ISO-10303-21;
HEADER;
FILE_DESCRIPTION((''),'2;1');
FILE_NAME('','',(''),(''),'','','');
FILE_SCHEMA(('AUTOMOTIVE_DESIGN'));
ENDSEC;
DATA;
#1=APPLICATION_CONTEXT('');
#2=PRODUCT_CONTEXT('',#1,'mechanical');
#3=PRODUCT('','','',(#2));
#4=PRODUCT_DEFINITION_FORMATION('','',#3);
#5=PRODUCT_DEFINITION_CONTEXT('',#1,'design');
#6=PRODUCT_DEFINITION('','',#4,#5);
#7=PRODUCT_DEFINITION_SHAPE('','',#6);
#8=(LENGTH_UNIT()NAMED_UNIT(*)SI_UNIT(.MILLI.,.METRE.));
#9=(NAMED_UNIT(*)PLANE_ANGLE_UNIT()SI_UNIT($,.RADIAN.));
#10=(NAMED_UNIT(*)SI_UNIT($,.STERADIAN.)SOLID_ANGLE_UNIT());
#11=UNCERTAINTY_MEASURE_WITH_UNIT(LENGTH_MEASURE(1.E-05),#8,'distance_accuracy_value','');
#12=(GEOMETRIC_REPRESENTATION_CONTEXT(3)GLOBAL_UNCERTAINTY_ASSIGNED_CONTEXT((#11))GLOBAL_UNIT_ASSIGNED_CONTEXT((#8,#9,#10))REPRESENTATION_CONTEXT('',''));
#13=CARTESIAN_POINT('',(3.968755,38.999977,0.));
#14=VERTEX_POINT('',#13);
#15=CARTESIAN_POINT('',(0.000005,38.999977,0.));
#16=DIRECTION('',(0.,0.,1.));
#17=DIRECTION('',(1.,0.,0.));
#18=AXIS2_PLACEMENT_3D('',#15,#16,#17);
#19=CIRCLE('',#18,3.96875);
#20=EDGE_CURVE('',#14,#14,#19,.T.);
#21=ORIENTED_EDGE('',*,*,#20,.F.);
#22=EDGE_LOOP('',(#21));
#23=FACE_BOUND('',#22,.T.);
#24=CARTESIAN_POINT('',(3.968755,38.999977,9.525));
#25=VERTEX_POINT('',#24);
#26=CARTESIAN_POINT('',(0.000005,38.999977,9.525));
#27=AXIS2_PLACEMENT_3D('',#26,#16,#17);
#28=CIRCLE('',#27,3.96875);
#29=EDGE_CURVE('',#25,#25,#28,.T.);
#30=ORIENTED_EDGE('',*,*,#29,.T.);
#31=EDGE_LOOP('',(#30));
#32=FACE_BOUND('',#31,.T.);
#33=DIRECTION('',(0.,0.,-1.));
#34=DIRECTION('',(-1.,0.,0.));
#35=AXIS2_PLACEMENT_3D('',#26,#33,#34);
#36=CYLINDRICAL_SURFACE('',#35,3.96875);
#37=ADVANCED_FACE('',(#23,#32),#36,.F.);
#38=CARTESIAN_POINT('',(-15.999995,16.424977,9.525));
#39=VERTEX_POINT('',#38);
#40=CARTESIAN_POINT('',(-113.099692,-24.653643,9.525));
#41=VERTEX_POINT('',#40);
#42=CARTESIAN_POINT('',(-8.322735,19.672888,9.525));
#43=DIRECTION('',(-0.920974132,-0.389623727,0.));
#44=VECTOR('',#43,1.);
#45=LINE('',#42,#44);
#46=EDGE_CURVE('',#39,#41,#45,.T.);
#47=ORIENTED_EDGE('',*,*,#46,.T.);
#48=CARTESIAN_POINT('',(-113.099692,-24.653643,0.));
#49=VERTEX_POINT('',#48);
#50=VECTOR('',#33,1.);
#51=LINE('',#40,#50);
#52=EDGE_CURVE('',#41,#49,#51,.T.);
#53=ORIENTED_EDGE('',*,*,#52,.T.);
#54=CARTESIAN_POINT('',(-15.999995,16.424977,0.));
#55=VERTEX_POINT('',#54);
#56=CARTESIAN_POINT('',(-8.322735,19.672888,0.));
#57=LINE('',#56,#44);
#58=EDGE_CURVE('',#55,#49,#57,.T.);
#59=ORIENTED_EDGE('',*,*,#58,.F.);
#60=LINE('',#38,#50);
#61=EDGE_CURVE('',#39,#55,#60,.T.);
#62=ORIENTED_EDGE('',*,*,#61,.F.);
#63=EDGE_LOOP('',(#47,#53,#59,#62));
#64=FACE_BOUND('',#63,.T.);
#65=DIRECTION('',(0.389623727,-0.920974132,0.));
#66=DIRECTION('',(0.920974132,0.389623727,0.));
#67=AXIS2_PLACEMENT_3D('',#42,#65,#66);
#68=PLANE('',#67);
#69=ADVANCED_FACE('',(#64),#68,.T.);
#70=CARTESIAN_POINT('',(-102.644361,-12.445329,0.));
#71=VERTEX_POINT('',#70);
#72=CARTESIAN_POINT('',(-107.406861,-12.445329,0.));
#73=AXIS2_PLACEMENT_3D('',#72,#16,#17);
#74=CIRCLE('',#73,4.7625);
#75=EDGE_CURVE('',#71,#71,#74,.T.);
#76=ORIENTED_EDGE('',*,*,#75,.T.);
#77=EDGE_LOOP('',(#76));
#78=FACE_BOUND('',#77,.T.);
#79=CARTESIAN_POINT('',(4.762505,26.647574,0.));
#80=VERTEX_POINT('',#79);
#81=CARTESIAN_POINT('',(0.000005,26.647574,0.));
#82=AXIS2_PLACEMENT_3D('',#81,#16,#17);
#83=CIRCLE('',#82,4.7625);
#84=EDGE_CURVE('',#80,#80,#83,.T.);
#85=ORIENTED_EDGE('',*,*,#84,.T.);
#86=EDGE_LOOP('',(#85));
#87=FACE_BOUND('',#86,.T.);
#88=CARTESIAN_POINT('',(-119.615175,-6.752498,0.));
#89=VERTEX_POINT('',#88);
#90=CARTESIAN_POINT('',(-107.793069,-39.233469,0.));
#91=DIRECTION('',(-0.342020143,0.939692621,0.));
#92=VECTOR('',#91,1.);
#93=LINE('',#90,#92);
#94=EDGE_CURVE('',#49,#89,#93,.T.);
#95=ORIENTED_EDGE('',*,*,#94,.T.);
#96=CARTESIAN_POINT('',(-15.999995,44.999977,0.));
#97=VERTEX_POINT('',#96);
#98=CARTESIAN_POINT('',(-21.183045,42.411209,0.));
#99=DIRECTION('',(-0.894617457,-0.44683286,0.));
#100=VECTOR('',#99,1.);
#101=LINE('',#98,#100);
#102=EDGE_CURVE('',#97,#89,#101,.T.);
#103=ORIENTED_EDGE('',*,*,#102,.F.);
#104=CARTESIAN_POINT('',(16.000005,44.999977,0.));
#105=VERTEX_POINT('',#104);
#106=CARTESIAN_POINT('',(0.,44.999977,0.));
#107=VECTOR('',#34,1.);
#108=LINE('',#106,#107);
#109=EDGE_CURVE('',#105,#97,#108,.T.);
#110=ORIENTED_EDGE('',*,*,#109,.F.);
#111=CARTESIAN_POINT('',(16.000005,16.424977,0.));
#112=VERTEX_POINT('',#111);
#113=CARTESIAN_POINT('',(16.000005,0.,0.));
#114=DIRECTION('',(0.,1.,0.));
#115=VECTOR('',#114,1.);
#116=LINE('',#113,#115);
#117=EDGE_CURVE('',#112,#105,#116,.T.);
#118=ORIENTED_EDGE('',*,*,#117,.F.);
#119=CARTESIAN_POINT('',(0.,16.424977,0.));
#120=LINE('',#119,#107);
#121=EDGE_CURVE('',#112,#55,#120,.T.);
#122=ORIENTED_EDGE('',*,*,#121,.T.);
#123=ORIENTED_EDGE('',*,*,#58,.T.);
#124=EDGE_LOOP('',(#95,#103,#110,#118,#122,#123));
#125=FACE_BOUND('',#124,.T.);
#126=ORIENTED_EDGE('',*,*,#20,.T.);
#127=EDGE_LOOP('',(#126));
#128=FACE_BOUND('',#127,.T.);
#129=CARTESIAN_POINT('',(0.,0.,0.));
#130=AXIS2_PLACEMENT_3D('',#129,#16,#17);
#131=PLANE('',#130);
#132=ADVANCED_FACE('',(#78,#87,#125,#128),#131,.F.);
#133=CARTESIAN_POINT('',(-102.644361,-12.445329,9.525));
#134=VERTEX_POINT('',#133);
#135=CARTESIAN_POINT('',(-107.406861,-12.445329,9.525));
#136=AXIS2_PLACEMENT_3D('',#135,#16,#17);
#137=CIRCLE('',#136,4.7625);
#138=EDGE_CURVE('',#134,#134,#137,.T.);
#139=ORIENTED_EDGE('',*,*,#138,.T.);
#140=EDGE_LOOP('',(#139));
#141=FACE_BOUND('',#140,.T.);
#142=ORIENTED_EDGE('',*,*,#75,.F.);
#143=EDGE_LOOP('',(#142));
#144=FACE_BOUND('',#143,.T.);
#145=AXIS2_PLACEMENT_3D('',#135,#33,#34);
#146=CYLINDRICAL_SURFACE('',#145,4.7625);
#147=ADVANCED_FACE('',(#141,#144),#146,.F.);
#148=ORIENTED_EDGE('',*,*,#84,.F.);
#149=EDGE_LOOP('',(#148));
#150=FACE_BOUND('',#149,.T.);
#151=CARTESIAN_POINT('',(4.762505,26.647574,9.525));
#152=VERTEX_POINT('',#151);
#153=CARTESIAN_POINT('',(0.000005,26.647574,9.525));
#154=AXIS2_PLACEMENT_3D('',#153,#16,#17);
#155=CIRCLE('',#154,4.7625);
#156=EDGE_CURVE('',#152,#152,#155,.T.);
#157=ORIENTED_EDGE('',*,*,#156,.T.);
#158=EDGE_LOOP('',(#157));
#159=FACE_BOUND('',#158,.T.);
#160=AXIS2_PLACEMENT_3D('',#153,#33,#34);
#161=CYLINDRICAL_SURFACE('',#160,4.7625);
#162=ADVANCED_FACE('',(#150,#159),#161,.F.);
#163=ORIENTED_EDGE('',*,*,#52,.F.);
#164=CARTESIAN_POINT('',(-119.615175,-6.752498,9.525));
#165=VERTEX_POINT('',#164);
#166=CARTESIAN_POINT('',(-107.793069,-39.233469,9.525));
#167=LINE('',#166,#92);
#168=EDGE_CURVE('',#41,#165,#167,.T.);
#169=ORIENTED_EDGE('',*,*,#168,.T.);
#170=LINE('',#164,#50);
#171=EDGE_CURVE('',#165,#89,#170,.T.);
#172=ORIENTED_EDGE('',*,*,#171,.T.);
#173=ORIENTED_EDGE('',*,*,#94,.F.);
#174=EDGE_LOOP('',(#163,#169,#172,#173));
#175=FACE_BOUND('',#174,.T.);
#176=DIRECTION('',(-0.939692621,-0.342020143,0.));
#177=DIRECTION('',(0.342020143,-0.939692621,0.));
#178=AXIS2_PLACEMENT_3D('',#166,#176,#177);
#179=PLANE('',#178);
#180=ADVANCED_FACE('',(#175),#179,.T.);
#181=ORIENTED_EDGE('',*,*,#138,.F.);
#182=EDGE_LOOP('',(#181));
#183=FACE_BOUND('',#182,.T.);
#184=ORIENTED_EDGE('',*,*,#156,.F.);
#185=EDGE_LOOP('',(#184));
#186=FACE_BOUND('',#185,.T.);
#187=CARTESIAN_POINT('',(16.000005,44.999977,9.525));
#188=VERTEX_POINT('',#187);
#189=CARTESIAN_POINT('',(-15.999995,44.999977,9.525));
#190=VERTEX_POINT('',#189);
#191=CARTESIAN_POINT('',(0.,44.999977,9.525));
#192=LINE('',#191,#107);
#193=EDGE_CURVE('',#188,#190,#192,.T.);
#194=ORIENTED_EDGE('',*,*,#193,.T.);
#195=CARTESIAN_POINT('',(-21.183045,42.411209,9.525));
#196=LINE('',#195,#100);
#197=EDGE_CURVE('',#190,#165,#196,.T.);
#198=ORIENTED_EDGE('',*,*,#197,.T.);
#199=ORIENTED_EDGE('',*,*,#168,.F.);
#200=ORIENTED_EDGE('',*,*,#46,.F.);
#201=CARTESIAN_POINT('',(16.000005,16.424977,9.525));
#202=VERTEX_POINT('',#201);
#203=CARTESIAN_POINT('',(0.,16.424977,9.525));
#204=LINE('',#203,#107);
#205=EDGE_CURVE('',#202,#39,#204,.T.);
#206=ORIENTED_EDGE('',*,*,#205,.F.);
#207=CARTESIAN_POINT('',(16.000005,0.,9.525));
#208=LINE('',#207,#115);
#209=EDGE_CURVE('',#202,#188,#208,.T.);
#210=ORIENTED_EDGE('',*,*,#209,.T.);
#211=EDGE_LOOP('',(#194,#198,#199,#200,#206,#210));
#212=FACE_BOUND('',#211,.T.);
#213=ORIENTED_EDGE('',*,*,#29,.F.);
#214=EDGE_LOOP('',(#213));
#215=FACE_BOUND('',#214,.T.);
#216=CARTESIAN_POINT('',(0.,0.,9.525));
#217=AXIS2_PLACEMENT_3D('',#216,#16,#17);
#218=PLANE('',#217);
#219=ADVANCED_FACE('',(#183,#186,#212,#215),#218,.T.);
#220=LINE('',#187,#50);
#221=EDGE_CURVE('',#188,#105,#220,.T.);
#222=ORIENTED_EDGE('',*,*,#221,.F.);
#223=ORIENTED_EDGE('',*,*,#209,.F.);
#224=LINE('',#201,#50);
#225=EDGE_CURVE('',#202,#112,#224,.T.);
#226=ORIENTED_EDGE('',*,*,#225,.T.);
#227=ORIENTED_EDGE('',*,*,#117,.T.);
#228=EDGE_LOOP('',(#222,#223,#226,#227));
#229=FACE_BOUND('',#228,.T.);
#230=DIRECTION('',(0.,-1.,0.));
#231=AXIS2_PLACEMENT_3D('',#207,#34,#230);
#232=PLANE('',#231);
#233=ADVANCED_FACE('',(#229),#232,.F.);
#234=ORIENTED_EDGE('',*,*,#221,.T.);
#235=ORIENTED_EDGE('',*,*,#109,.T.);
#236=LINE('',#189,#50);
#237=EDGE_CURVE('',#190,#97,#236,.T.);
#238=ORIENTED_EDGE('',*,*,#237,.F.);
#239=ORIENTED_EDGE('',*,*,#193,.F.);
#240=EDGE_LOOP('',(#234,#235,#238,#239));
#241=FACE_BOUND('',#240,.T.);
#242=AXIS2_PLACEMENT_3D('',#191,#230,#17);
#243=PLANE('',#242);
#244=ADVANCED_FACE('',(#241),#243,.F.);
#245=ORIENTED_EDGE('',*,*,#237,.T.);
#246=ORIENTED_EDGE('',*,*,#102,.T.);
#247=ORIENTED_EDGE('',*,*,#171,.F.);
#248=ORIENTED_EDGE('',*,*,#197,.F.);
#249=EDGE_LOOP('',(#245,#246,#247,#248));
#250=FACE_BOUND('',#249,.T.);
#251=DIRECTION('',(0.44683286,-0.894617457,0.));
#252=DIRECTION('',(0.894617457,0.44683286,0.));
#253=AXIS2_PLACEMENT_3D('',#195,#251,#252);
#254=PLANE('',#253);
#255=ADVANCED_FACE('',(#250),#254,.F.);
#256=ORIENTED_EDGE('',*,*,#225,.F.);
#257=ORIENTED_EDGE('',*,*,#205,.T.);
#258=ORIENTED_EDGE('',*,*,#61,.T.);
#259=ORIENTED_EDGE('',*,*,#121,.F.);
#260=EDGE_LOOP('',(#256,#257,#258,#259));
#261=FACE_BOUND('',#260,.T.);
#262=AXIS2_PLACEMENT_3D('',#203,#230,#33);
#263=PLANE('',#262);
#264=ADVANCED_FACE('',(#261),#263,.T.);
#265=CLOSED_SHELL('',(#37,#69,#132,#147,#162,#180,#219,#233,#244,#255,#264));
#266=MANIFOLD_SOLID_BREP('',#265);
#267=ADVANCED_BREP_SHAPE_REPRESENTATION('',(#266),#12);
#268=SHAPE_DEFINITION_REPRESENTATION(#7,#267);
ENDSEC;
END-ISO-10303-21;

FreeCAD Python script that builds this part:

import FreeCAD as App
import Part
import Sketcher

V = App.Vector
Q = App.Units.Quantity


def add_polygon(sketch, points):
    """Adds a closed chain of lines whose ends are joined by coincident constraints."""
    first, n = sketch.GeometryCount, len(points)
    for a, b in zip(points, points[1:] + points[:1]):
        sketch.addGeometry(Part.LineSegment(App.Vector(*a, 0), App.Vector(*b, 0)), False)
    for i in range(n):
        sketch.addConstraint(Sketcher.Constraint("Coincident", first + i, 2, first + (i + 1) % n, 1))

doc = App.newDocument("Part")
params = doc.addObject("Spreadsheet::Sheet", "Params")
for row, (alias, value) in enumerate([
    ("sketch1_diameter", "0.375 in"),
    ("sketch1_diameter2", "0.3125 in"),
    ("sketch1_length", "0.75 in"),
    ("sketch1_height", "1.125 in"),
    ("pad1_length", "0.375 in"),
], start=1):
    params.set(f"A{row}", alias)
    params.set(f"B{row}", "=" + value)
    params.setAlias(f"B{row}", alias)

body = doc.addObject("PartDesign::Body", "Body")

# Sketch on XY plane
sketch1 = body.newObject("Sketcher::SketchObject", "Sketch")
sketch1.AttachmentSupport = (doc.getObject("XY_Plane"), [""])
sketch1.MapMode = "FlatFace"
add_polygon(sketch1, [(-16, 45), (-119.6, -6.8), (-113.1, -24.7), (-16, 16.4), (16, 16.4), (16, 45)])  # lines 0-5
sketch1.addGeometry(Part.Circle(V(-107.4, -12.4, 0), V(0, 0, 1), 4.8), False)  # 6
sketch1.addGeometry(Part.Circle(V(0, 26.6, 0), V(0, 0, 1), 4.8), False)  # 7
sketch1.addGeometry(Part.Circle(V(0, 39, 0), V(0, 0, 1), 4), False)  # 8
sketch1.addConstraint(Sketcher.Constraint("Horizontal", 3))
sketch1.addConstraint(Sketcher.Constraint("Vertical", 4))
sketch1.addConstraint(Sketcher.Constraint("Horizontal", 5))
sketch1.addConstraint(Sketcher.Constraint("Equal", 6, 7))
sketch1.addConstraint(Sketcher.Constraint("Vertical", 7, 3, 8, 3))
sketch1.addConstraint(Sketcher.Constraint("Vertical", 2, 2, 5, 2))
sketch1.addConstraint(Sketcher.Constraint("Diameter", 6, Q("0.375 in")))
sketch1.addConstraint(Sketcher.Constraint("Diameter", 8, Q("0.3125 in")))
sketch1.addConstraint(Sketcher.Constraint("Angle", 1, Q("-70 deg")))
sketch1.addConstraint(Sketcher.Constraint("Distance", 1, Q("0.75 in")))
sketch1.addConstraint(Sketcher.Constraint("DistanceY", 4, 1, 4, 2, Q("1.125 in")))
sketch1.addConstraint(Sketcher.Constraint("DistanceX", 3, 1, 3, 2, 32.0))
sketch1.addConstraint(Sketcher.Constraint("DistanceY", 0, 2, -1, 1, 6.752498))
sketch1.addConstraint(Sketcher.Constraint("DistanceX", 2, 2, 7, 3, 16.0))
sketch1.addConstraint(Sketcher.Constraint("DistanceY", 2, 2, 8, 3, 22.575))
sketch1.addConstraint(Sketcher.Constraint("DistanceX", 6, 3, -1, 1, 107.406861))
sketch1.addConstraint(Sketcher.Constraint("DistanceY", 6, 3, -1, 1, 12.445329))
sketch1.addConstraint(Sketcher.Constraint("DistanceX", 1, 2, -1, 1, 113.099692))
sketch1.addConstraint(Sketcher.Constraint("DistanceX", 0, 2, 7, 3, 119.615181))
sketch1.addConstraint(Sketcher.Constraint("DistanceY", 1, 2, 8, 3, 63.653619))
sketch1.addConstraint(Sketcher.Constraint("DistanceY", -1, 1, 7, 3, 26.647574))
sketch1.setExpression("Constraints[12]", "Params.sketch1_diameter")
sketch1.setExpression("Constraints[13]", "Params.sketch1_diameter2")
sketch1.setExpression("Constraints[15]", "Params.sketch1_length")
sketch1.setExpression("Constraints[16]", "Params.sketch1_height")
pad1 = body.newObject("PartDesign::Pad", "Pad")
pad1.Profile = sketch1
pad1.setExpression("Length", "Params.pad1_length")

doc.recompute()
